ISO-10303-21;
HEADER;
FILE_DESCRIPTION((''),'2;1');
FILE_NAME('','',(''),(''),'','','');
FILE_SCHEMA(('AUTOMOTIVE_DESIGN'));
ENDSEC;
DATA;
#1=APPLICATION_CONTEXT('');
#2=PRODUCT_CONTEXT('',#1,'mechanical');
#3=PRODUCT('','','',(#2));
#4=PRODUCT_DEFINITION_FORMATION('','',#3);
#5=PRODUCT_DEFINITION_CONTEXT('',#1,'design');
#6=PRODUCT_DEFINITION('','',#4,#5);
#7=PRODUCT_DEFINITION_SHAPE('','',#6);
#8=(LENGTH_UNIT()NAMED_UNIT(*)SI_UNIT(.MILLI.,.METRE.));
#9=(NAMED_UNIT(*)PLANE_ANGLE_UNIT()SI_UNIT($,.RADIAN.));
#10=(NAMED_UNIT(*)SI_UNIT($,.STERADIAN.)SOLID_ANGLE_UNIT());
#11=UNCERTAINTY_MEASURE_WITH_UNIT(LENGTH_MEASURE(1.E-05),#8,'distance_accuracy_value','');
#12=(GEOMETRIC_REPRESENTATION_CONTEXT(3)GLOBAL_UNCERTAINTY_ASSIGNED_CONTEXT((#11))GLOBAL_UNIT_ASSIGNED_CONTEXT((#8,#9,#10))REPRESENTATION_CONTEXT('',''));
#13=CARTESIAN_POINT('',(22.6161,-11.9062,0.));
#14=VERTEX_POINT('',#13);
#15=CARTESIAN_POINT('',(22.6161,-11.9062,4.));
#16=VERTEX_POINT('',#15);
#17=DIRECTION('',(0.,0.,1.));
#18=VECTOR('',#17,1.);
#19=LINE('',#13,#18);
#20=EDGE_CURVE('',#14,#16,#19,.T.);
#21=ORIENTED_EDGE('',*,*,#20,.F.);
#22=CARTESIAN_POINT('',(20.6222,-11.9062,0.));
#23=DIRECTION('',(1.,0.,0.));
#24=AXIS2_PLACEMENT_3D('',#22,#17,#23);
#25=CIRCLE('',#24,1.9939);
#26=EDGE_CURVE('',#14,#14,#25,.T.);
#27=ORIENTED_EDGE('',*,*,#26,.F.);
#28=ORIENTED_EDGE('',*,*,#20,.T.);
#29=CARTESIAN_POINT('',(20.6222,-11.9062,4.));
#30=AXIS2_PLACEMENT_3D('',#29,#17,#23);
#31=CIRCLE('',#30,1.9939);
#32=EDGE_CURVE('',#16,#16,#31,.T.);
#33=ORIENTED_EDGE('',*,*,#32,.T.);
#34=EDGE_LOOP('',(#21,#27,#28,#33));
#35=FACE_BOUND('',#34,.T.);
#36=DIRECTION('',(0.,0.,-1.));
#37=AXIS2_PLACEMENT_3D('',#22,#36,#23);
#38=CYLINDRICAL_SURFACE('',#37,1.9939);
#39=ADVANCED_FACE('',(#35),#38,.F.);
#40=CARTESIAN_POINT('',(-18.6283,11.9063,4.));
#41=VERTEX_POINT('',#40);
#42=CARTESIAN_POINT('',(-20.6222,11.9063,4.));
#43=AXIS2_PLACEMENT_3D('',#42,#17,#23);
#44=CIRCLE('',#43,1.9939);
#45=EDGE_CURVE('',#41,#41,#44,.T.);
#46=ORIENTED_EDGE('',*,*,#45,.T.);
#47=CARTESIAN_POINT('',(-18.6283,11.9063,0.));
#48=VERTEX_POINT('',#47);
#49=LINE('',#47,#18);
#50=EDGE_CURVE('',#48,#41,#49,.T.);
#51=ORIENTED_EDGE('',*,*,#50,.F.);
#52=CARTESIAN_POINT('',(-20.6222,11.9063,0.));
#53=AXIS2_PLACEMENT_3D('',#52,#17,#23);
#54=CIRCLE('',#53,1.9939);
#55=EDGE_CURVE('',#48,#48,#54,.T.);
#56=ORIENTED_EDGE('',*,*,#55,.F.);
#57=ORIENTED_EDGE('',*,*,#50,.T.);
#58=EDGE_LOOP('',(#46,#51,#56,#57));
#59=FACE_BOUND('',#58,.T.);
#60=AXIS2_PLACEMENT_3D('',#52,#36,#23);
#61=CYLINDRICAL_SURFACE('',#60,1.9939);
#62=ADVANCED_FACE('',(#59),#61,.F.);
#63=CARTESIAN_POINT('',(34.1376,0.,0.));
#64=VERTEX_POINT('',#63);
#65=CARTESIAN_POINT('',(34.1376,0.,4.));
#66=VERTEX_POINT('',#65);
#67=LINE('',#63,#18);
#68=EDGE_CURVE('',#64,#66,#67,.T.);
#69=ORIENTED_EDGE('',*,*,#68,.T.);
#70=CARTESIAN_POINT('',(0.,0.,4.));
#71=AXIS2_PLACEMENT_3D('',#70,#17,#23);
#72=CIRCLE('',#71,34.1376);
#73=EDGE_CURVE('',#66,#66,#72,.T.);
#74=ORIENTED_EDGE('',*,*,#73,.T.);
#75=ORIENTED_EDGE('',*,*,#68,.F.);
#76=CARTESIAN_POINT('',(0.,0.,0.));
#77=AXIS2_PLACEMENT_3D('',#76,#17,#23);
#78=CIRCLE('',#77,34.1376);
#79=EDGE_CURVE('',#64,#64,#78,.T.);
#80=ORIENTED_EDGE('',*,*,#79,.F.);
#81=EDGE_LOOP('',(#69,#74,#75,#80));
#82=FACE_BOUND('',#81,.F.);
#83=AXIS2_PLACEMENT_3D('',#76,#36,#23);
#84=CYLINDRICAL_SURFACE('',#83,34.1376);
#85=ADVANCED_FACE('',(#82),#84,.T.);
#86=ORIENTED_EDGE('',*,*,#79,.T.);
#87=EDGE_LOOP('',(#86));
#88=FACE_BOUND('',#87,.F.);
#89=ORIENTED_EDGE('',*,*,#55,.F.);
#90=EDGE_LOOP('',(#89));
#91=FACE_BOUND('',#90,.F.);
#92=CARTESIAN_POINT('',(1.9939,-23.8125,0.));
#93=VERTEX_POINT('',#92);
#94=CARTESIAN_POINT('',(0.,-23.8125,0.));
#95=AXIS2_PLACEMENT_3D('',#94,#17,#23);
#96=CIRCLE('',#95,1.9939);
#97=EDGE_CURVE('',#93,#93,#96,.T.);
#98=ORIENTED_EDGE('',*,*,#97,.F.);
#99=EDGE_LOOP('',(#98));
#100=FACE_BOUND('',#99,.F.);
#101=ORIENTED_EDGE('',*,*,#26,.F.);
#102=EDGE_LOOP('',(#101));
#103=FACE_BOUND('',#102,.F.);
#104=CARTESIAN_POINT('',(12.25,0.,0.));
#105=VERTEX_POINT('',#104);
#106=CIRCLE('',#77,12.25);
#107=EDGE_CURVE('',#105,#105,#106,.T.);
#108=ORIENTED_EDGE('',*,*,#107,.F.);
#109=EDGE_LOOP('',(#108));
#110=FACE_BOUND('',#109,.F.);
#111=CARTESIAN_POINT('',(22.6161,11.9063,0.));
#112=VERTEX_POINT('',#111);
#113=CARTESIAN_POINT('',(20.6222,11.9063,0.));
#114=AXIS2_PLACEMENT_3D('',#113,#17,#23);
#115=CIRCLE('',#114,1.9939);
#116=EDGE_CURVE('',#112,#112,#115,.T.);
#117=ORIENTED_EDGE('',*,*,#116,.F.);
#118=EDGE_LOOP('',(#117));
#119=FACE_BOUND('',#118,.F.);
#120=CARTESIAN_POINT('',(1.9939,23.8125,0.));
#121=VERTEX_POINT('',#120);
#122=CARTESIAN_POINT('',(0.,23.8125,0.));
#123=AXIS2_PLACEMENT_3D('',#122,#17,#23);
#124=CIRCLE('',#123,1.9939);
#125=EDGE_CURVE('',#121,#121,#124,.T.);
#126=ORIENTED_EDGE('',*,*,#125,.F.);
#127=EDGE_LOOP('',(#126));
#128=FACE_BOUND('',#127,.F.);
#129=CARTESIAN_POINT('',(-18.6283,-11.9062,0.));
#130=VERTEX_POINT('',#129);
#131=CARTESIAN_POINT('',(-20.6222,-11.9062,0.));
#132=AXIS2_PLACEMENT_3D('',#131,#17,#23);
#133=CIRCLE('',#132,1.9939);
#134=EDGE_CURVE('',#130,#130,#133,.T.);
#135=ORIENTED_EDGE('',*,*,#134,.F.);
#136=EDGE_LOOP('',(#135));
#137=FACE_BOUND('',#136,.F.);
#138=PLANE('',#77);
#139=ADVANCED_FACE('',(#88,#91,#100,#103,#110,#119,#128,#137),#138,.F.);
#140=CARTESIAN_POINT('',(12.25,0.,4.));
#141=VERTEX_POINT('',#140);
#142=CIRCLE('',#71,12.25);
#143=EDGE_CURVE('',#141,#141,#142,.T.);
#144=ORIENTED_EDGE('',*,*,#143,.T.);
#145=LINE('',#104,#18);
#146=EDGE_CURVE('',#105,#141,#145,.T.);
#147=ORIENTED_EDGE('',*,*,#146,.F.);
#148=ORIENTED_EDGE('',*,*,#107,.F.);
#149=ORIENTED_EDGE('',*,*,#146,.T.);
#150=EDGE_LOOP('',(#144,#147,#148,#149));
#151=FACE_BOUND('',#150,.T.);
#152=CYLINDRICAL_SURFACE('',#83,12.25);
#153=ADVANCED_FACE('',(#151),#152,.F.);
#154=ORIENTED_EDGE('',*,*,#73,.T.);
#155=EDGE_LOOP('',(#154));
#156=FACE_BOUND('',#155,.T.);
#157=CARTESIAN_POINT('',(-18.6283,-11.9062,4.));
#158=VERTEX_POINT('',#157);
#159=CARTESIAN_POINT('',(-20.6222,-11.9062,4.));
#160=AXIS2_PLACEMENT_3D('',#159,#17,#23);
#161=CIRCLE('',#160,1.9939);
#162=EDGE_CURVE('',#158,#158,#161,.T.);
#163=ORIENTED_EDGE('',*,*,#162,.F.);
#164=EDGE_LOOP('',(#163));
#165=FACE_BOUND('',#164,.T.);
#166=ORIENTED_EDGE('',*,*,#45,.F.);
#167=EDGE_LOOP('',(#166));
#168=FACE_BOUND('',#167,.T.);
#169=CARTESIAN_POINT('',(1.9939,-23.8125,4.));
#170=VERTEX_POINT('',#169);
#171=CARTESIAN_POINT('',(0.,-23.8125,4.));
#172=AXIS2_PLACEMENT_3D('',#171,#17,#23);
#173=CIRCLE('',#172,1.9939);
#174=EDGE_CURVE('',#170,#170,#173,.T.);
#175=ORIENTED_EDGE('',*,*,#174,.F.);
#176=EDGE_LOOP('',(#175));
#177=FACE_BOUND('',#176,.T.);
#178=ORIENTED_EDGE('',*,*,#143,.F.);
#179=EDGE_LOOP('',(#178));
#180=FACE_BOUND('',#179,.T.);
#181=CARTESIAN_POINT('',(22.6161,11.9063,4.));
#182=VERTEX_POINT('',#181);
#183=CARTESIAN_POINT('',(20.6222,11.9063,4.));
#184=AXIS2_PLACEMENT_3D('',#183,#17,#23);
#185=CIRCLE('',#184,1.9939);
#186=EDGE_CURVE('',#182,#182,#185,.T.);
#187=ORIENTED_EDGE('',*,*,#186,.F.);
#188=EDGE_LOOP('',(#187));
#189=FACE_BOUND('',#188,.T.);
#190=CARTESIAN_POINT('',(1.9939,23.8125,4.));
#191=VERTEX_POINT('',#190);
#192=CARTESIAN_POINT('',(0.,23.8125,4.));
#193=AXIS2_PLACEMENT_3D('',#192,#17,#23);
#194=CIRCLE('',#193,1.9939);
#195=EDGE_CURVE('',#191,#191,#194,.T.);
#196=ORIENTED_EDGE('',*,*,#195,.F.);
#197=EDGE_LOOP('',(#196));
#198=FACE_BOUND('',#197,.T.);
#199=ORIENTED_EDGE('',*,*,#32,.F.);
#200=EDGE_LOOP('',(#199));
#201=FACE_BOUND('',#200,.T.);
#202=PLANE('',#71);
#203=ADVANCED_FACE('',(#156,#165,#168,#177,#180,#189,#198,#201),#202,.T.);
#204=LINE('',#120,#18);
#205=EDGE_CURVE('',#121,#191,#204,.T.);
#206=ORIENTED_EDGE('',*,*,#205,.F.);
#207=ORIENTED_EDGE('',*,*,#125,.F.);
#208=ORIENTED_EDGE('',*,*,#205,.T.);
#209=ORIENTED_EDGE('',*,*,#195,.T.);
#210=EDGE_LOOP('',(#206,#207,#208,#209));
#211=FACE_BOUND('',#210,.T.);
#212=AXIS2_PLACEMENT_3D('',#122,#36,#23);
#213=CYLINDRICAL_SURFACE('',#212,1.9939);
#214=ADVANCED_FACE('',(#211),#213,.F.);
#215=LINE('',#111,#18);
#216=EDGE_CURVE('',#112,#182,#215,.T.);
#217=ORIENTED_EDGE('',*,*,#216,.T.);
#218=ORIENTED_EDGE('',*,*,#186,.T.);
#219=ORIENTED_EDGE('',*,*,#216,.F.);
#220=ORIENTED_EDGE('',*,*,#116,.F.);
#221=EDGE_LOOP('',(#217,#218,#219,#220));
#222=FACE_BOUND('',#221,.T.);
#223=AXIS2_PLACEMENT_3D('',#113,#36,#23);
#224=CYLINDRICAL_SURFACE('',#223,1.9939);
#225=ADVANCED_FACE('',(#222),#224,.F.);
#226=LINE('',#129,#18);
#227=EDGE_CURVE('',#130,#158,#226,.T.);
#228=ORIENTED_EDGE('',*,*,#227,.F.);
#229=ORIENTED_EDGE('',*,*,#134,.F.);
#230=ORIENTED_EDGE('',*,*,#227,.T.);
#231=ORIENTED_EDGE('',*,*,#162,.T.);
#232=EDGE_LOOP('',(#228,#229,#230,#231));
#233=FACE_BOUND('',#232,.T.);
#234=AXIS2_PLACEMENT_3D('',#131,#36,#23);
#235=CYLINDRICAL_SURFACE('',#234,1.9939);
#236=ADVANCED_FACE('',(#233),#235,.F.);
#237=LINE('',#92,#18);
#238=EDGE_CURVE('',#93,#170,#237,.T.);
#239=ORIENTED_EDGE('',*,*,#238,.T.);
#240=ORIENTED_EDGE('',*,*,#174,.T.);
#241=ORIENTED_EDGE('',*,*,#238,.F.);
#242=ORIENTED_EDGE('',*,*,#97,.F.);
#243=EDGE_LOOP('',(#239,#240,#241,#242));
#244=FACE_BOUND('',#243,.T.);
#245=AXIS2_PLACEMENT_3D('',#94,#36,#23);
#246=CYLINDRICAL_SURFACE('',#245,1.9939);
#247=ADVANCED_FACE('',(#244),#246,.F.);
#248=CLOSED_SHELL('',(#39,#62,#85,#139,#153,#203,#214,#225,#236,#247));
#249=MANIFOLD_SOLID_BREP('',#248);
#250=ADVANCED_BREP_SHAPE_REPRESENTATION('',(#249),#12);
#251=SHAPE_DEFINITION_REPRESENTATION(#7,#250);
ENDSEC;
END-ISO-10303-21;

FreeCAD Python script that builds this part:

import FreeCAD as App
import Part
import Sketcher
from FreeCAD import Vector
Q = App.Units.Quantity

doc = App.newDocument("Part")
body = doc.addObject("PartDesign::Body", "Body")

sketch1 = doc.addObject("Sketcher::SketchObject", "Sketch")
body.addObject(sketch1)
sketch1.AttachmentSupport = (doc.XY_Plane, [""])
sketch1.MapMode = "FlatFace"
sketch1.addGeometry([
    Part.Circle(Vector(0, 0, 0), Vector(0, 0, 1), 34.1376),
    Part.Circle(Vector(-20.6222, -11.9062, 0), Vector(0, 0, 1), 1.9939),
    Part.Circle(Vector(0, -23.8125, 0), Vector(0, 0, 1), 1.9939),
    Part.Circle(Vector(20.6222, -11.9062, 0), Vector(0, 0, 1), 1.9939),
    Part.Circle(Vector(-20.6222, 11.9063, 0), Vector(0, 0, 1), 1.9939),
    Part.Circle(Vector(0, 0, 0), Vector(0, 0, 1), 12.25),
    Part.Circle(Vector(20.6222, 11.9063, 0), Vector(0, 0, 1), 1.9939),
    Part.Circle(Vector(0, 23.8125, 0), Vector(0, 0, 1), 1.9939),
], False)
sketch1.addConstraint([
    Sketcher.Constraint("Coincident", 0, 3, -1, 1),
    Sketcher.Constraint("Coincident", 5, 3, -1, 1),
    Sketcher.Constraint("Equal", 1, 2),
    Sketcher.Constraint("Equal", 2, 3),
    Sketcher.Constraint("Equal", 3, 4),
    Sketcher.Constraint("Equal", 4, 6),
    Sketcher.Constraint("Equal", 6, 7),
    Sketcher.Constraint("Symmetric", 3, 3, 4, 3, -1, 1),
    Sketcher.Constraint("Symmetric", 1, 3, 6, 3, -1, 1),
    Sketcher.Constraint("Symmetric", 2, 3, 7, 3, -1, 1),
    Sketcher.Constraint("Symmetric", 1, 3, 3, 3, -2),
    Sketcher.Constraint("PointOnObject", 2, 3, -2),
    Sketcher.Constraint("Diameter", 5, Q("24.5 mm")),
    Sketcher.Constraint("Diameter", 0, Q("68.2752 mm")),
    Sketcher.Constraint("Diameter", 1, Q("3.9878 mm")),
    Sketcher.Constraint("DistanceX", 1, 3, -1, 1, Q("20.6222 mm")),
    Sketcher.Constraint("DistanceY", 1, 3, -1, 1, Q("11.9062 mm")),
    Sketcher.Constraint("DistanceY", 2, 3, -1, 1, Q("23.8125 mm")),
])
pad1 = doc.addObject("PartDesign::Pad", "Pad")
body.addObject(pad1)
pad1.Profile = sketch1
pad1.Length = 4

doc.recompute()
